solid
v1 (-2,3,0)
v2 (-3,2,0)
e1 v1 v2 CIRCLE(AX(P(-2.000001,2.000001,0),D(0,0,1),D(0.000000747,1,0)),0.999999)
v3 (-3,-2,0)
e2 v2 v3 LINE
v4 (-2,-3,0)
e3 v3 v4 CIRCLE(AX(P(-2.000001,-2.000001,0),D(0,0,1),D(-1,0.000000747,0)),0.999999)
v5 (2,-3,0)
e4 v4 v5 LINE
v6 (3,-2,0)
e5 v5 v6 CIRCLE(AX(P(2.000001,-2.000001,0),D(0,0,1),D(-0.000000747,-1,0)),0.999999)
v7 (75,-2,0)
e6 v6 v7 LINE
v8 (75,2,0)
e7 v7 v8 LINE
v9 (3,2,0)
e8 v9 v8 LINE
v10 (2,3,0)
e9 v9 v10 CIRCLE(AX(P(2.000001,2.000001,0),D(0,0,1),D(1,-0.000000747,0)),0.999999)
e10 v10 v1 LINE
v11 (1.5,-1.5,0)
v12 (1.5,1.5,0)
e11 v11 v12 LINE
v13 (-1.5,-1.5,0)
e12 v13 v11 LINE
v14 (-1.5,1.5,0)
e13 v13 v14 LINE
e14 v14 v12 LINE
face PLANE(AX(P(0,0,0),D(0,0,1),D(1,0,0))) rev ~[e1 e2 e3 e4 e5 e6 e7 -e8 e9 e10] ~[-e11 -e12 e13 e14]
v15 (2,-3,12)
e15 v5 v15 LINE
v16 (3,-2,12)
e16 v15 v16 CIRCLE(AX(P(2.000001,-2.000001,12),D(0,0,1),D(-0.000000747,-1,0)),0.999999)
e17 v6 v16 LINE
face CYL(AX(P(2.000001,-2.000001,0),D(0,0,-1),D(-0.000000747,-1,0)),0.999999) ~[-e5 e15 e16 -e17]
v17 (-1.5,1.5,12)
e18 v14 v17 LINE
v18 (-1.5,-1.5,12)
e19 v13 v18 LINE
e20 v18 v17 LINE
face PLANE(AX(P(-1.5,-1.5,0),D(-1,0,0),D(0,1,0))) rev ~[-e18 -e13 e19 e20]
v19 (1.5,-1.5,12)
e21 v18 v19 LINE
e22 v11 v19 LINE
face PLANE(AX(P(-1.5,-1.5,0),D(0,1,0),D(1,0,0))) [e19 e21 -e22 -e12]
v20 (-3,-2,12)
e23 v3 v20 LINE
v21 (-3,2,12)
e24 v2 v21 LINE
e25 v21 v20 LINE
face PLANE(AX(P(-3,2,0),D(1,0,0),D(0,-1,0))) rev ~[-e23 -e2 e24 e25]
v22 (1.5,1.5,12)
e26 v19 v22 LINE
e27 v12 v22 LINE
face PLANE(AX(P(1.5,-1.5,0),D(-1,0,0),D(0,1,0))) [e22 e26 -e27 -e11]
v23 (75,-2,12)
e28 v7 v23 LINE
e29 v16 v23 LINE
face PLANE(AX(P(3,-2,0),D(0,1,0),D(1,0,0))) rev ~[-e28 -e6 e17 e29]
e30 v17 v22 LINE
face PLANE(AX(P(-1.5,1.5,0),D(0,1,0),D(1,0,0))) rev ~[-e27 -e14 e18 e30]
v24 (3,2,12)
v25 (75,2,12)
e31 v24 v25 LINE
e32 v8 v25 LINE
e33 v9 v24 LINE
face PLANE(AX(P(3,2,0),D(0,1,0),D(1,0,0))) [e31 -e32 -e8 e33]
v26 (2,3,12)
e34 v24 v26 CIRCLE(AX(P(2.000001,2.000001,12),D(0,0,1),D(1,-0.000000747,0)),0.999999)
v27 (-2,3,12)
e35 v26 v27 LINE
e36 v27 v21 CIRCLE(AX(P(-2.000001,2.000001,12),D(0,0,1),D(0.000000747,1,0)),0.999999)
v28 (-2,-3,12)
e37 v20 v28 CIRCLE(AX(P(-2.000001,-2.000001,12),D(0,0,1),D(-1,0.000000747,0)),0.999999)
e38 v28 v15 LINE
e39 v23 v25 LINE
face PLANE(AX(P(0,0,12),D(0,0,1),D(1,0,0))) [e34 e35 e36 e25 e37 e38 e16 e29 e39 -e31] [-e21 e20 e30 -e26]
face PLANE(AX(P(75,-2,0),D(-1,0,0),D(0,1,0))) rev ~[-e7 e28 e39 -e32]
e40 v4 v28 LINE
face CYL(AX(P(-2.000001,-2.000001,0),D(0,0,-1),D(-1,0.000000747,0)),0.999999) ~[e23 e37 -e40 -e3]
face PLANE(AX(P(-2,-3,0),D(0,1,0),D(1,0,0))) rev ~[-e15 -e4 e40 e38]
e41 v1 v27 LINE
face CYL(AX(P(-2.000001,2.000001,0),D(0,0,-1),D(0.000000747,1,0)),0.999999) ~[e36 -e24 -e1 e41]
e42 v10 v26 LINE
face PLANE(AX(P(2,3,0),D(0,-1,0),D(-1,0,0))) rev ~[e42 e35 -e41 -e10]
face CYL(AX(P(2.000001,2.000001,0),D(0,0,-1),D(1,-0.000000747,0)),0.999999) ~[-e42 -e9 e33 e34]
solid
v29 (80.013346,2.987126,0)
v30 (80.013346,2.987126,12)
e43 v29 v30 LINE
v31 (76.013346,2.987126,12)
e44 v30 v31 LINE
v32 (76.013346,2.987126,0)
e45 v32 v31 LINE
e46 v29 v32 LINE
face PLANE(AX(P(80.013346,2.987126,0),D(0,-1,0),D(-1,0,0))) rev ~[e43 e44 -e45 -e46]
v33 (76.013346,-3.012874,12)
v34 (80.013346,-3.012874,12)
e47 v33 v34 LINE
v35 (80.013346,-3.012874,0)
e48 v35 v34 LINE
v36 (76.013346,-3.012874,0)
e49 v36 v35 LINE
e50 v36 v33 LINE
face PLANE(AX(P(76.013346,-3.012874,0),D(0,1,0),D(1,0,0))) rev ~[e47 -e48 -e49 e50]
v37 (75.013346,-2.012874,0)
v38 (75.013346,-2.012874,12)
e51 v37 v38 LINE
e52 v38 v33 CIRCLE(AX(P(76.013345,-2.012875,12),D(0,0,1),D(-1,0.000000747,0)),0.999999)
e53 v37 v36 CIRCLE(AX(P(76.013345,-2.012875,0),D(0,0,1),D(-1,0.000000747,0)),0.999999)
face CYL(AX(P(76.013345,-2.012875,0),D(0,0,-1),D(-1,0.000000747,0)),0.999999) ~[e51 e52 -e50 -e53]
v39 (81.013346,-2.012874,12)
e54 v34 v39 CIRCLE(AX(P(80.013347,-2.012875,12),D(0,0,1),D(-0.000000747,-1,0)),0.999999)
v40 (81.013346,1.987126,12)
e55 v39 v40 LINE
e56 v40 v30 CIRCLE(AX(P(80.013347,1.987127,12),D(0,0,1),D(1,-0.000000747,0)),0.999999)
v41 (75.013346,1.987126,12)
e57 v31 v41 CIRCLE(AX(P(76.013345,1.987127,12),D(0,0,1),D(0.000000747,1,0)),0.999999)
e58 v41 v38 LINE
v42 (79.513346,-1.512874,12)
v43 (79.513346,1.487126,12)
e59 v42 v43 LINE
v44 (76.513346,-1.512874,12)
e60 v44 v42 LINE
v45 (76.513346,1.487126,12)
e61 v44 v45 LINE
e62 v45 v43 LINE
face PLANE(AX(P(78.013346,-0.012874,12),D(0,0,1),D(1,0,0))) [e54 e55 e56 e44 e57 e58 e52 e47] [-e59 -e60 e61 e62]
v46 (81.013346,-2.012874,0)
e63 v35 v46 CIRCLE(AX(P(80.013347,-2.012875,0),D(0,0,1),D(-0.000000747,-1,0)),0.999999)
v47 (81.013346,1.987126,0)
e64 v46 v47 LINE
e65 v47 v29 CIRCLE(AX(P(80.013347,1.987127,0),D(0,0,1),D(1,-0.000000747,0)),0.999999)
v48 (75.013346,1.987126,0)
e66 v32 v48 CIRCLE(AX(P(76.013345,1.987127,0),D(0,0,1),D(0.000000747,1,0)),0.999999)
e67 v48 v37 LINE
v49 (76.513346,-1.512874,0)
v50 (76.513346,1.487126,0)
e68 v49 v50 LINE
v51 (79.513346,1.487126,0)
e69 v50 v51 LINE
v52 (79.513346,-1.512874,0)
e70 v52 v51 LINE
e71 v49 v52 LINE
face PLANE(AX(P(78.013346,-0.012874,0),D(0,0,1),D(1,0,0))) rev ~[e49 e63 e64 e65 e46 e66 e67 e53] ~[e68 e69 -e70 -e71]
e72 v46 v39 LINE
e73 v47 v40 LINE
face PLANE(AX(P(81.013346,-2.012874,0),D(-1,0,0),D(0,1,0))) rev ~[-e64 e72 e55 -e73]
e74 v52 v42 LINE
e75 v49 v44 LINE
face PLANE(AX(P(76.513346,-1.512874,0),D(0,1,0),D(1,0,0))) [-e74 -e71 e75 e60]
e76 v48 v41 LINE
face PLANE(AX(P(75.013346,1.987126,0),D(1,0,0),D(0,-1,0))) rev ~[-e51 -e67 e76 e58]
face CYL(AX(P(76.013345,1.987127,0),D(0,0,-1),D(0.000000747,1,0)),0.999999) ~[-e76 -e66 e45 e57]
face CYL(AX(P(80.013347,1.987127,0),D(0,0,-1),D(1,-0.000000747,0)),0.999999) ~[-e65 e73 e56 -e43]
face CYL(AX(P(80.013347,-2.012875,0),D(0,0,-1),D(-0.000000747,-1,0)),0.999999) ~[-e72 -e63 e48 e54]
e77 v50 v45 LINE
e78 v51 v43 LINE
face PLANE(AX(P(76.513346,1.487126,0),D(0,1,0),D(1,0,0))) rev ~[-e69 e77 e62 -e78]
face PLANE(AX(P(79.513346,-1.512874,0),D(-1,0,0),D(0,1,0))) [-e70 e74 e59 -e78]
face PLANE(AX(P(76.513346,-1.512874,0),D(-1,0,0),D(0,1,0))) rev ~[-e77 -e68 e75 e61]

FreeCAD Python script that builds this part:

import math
import FreeCAD as App
import Part
import Sketcher
from FreeCAD import Vector
Q = App.Units.Quantity

doc = App.newDocument("Part")
params = doc.addObject("Spreadsheet::Sheet", "Params")
for row, (alias, value) in enumerate([
    ("sketch1_radius", "0.999999 mm"),
    ("sketch1_width", "4 mm"),
    ("sketch1_width2", "72 mm"),
    ("sketch1_width3", "3 mm"),
    ("pad1_length", "12 mm"),
], start=1):
    params.set(f"A{row}", alias)
    params.set(f"B{row}", "=" + value)
    params.setAlias(f"B{row}", alias)

body = doc.addObject("PartDesign::Body", "Body")
body.AllowCompound = True

sketch1 = body.newObject("Sketcher::SketchObject", "Sketch")
sketch1.AttachmentSupport = (doc.getObject("XY_Plane"), [""])
sketch1.MapMode = "FlatFace"
sketch1.addGeometry(Part.LineSegment(Vector(2, 3, 0), Vector(-2, 3, 0)), False)
sketch1.addGeometry(Part.ArcOfCircle(Part.Circle(Vector(-2, 2, 0), Vector(0, 0, 1), 1), math.radians(90), math.radians(180)), False)
sketch1.addGeometry(Part.LineSegment(Vector(-3, 2, 0), Vector(-3, -2, 0)), False)
sketch1.addGeometry(Part.ArcOfCircle(Part.Circle(Vector(-2, -2, 0), Vector(0, 0, 1), 1), math.radians(180), math.radians(270)), False)
sketch1.addGeometry(Part.LineSegment(Vector(-2, -3, 0), Vector(2, -3, 0)), False)
sketch1.addGeometry(Part.ArcOfCircle(Part.Circle(Vector(2, -2, 0), Vector(0, 0, 1), 1), math.radians(-90), math.radians(0)), False)
sketch1.addGeometry(Part.LineSegment(Vector(3, -2, 0), Vector(75, -2, 0)), False)
sketch1.addGeometry(Part.LineSegment(Vector(75, -2, 0), Vector(75, 2, 0)), False)
sketch1.addGeometry(Part.LineSegment(Vector(75, 2, 0), Vector(3, 2, 0)), False)
sketch1.addGeometry(Part.ArcOfCircle(Part.Circle(Vector(2, 2, 0), Vector(0, 0, 1), 1), math.radians(0), math.radians(90)), False)
sketch1.addGeometry(Part.LineSegment(Vector(1.5, -1.5, 0), Vector(-1.5, -1.5, 0)), False)
sketch1.addGeometry(Part.LineSegment(Vector(-1.5, -1.5, 0), Vector(-1.5, 1.5, 0)), False)
sketch1.addGeometry(Part.LineSegment(Vector(-1.5, 1.5, 0), Vector(1.5, 1.5, 0)), False)
sketch1.addGeometry(Part.LineSegment(Vector(1.5, 1.5, 0), Vector(1.5, -1.5, 0)), False)
sketch1.addGeometry(Part.LineSegment(Vector(80, 3, 0), Vector(76, 3, 0)), False)
sketch1.addGeometry(Part.ArcOfCircle(Part.Circle(Vector(76, 2, 0), Vector(0, 0, 1), 1), math.radians(90), math.radians(180)), False)
sketch1.addGeometry(Part.LineSegment(Vector(75, 2, 0), Vector(75, -2, 0)), False)
sketch1.addGeometry(Part.ArcOfCircle(Part.Circle(Vector(76, -2, 0), Vector(0, 0, 1), 1), math.radians(180), math.radians(270)), False)
sketch1.addGeometry(Part.LineSegment(Vector(76, -3, 0), Vector(80, -3, 0)), False)
sketch1.addGeometry(Part.ArcOfCircle(Part.Circle(Vector(80, -2, 0), Vector(0, 0, 1), 1), math.radians(-90), math.radians(0)), False)
sketch1.addGeometry(Part.LineSegment(Vector(81, -2, 0), Vector(81, 2, 0)), False)
sketch1.addGeometry(Part.ArcOfCircle(Part.Circle(Vector(80, 2, 0), Vector(0, 0, 1), 1), math.radians(0), math.radians(90)), False)
sketch1.addGeometry(Part.LineSegment(Vector(79.5, -1.5, 0), Vector(76.5, -1.5, 0)), False)
sketch1.addGeometry(Part.LineSegment(Vector(76.5, -1.5, 0), Vector(76.5, 1.5, 0)), False)
sketch1.addGeometry(Part.LineSegment(Vector(76.5, 1.5, 0), Vector(79.5, 1.5, 0)), False)
sketch1.addGeometry(Part.LineSegment(Vector(79.5, 1.5, 0), Vector(79.5, -1.5, 0)), False)
sketch1.addConstraint(Sketcher.Constraint("Tangent", 0, 2, 1, 1))
sketch1.addConstraint(Sketcher.Constraint("Tangent", 1, 2, 2, 1))
sketch1.addConstraint(Sketcher.Constraint("Tangent", 2, 2, 3, 1))
sketch1.addConstraint(Sketcher.Constraint("Tangent", 3, 2, 4, 1))
sketch1.addConstraint(Sketcher.Constraint("Tangent", 4, 2, 5, 1))
sketch1.addConstraint(Sketcher.Constraint("Coincident", 5, 2, 6, 1))
sketch1.addConstraint(Sketcher.Constraint("Coincident", 6, 2, 7, 1))
sketch1.addConstraint(Sketcher.Constraint("Coincident", 7, 2, 8, 1))
sketch1.addConstraint(Sketcher.Constraint("Coincident", 8, 2, 9, 1))
sketch1.addConstraint(Sketcher.Constraint("Tangent", 9, 2, 0, 1))
sketch1.addConstraint(Sketcher.Constraint("Coincident", 10, 2, 11, 1))
sketch1.addConstraint(Sketcher.Constraint("Coincident", 11, 2, 12, 1))
sketch1.addConstraint(Sketcher.Constraint("Coincident", 12, 2, 13, 1))
sketch1.addConstraint(Sketcher.Constraint("Coincident", 13, 2, 10, 1))
sketch1.addConstraint(Sketcher.Constraint("Tangent", 14, 2, 15, 1))
sketch1.addConstraint(Sketcher.Constraint("Tangent", 15, 2, 16, 1))
sketch1.addConstraint(Sketcher.Constraint("Tangent", 16, 2, 17, 1))
sketch1.addConstraint(Sketcher.Constraint("Tangent", 17, 2, 18, 1))
sketch1.addConstraint(Sketcher.Constraint("Tangent", 18, 2, 19, 1))
sketch1.addConstraint(Sketcher.Constraint("Tangent", 19, 2, 20, 1))
sketch1.addConstraint(Sketcher.Constraint("Tangent", 20, 2, 21, 1))
sketch1.addConstraint(Sketcher.Constraint("Tangent", 21, 2, 14, 1))
sketch1.addConstraint(Sketcher.Constraint("Coincident", 22, 2, 23, 1))
sketch1.addConstraint(Sketcher.Constraint("Coincident", 23, 2, 24, 1))
sketch1.addConstraint(Sketcher.Constraint("Coincident", 24, 2, 25, 1))
sketch1.addConstraint(Sketcher.Constraint("Coincident", 25, 2, 22, 1))
sketch1.addConstraint(Sketcher.Constraint("Horizontal", 0))
sketch1.addConstraint(Sketcher.Constraint("Vertical", 2))
sketch1.addConstraint(Sketcher.Constraint("Horizontal", 4))
sketch1.addConstraint(Sketcher.Constraint("Horizontal", 6))
sketch1.addConstraint(Sketcher.Constraint("Vertical", 7))
sketch1.addConstraint(Sketcher.Constraint("Horizontal", 8))
sketch1.addConstraint(Sketcher.Constraint("Horizontal", 10))
sketch1.addConstraint(Sketcher.Constraint("Vertical", 11))
sketch1.addConstraint(Sketcher.Constraint("Horizontal", 12))
sketch1.addConstraint(Sketcher.Constraint("Vertical", 13))
sketch1.addConstraint(Sketcher.Constraint("Horizontal", 14))
sketch1.addConstraint(Sketcher.Constraint("Vertical", 16))
sketch1.addConstraint(Sketcher.Constraint("Horizontal", 18))
sketch1.addConstraint(Sketcher.Constraint("Vertical", 20))
sketch1.addConstraint(Sketcher.Constraint("Horizontal", 22))
sketch1.addConstraint(Sketcher.Constraint("Vertical", 23))
sketch1.addConstraint(Sketcher.Constraint("Horizontal", 24))
sketch1.addConstraint(Sketcher.Constraint("Vertical", 25))
sketch1.addConstraint(Sketcher.Constraint("Equal", 1, 3))
sketch1.addConstraint(Sketcher.Constraint("Equal", 3, 5))
sketch1.addConstraint(Sketcher.Constraint("Equal", 5, 9))
sketch1.addConstraint(Sketcher.Constraint("Equal", 9, 15))
sketch1.addConstraint(Sketcher.Constraint("Equal", 15, 17))
sketch1.addConstraint(Sketcher.Constraint("Equal", 17, 19))
sketch1.addConstraint(Sketcher.Constraint("Equal", 19, 21))
sketch1.addConstraint(Sketcher.Constraint("Symmetric", 1, 3, 5, 3, -1, 1))
sketch1.addConstraint(Sketcher.Constraint("Symmetric", 2, 2, 8, 2, -1, 1))
sketch1.addConstraint(Sketcher.Constraint("Symmetric", 10, 2, 12, 2, -1, 1))
sketch1.addConstraint(Sketcher.Constraint("Horizontal", 2, 2, 5, 2))
sketch1.addConstraint(Sketcher.Constraint("Equal", 4, 14))
sketch1.addConstraint(Sketcher.Constraint("Equal", 12, 22))
sketch1.addConstraint(Sketcher.Constraint("Equal", 18, 2))
sketch1.addConstraint(Sketcher.Constraint("Equal", 24, 11))
sketch1.addConstraint(Sketcher.Constraint("Equal", 7, 16))
sketch1.addConstraint(Sketcher.Constraint("Equal", 13, 23))
sketch1.addConstraint(Sketcher.Constraint("Radius", 1, Q("0.999999 mm")))
sketch1.addConstraint(Sketcher.Constraint("DistanceX", 0, 2, 0, 1, Q("4 mm")))
sketch1.addConstraint(Sketcher.Constraint("DistanceX", 6, 1, 6, 2, Q("72 mm")))
sketch1.addConstraint(Sketcher.Constraint("DistanceX", 10, 2, 10, 1, Q("3 mm")))
sketch1.addConstraint(Sketcher.Constraint("DistanceX", 17, 3, 22, 2, Q("0.500001 mm")))
sketch1.addConstraint(Sketcher.Constraint("DistanceY", 17, 3, 22, 2, Q("0.500001 mm")))
sketch1.addConstraint(Sketcher.Constraint("DistanceX", -1, 1, 15, 3, Q("76.013345 mm")))
sketch1.addConstraint(Sketcher.Constraint("DistanceY", -1, 1, 15, 3, Q("1.987127 mm")))
sketch1.setExpression("Constraints[61]", "Params.sketch1_radius")
sketch1.setExpression("Constraints[62]", "Params.sketch1_width")
sketch1.setExpression("Constraints[63]", "Params.sketch1_width2")
sketch1.setExpression("Constraints[64]", "Params.sketch1_width3")
pad1 = body.newObject("PartDesign::Pad", "Pad")
pad1.Profile = sketch1
pad1.setExpression("Length", "Params.pad1_length")

doc.recompute()
